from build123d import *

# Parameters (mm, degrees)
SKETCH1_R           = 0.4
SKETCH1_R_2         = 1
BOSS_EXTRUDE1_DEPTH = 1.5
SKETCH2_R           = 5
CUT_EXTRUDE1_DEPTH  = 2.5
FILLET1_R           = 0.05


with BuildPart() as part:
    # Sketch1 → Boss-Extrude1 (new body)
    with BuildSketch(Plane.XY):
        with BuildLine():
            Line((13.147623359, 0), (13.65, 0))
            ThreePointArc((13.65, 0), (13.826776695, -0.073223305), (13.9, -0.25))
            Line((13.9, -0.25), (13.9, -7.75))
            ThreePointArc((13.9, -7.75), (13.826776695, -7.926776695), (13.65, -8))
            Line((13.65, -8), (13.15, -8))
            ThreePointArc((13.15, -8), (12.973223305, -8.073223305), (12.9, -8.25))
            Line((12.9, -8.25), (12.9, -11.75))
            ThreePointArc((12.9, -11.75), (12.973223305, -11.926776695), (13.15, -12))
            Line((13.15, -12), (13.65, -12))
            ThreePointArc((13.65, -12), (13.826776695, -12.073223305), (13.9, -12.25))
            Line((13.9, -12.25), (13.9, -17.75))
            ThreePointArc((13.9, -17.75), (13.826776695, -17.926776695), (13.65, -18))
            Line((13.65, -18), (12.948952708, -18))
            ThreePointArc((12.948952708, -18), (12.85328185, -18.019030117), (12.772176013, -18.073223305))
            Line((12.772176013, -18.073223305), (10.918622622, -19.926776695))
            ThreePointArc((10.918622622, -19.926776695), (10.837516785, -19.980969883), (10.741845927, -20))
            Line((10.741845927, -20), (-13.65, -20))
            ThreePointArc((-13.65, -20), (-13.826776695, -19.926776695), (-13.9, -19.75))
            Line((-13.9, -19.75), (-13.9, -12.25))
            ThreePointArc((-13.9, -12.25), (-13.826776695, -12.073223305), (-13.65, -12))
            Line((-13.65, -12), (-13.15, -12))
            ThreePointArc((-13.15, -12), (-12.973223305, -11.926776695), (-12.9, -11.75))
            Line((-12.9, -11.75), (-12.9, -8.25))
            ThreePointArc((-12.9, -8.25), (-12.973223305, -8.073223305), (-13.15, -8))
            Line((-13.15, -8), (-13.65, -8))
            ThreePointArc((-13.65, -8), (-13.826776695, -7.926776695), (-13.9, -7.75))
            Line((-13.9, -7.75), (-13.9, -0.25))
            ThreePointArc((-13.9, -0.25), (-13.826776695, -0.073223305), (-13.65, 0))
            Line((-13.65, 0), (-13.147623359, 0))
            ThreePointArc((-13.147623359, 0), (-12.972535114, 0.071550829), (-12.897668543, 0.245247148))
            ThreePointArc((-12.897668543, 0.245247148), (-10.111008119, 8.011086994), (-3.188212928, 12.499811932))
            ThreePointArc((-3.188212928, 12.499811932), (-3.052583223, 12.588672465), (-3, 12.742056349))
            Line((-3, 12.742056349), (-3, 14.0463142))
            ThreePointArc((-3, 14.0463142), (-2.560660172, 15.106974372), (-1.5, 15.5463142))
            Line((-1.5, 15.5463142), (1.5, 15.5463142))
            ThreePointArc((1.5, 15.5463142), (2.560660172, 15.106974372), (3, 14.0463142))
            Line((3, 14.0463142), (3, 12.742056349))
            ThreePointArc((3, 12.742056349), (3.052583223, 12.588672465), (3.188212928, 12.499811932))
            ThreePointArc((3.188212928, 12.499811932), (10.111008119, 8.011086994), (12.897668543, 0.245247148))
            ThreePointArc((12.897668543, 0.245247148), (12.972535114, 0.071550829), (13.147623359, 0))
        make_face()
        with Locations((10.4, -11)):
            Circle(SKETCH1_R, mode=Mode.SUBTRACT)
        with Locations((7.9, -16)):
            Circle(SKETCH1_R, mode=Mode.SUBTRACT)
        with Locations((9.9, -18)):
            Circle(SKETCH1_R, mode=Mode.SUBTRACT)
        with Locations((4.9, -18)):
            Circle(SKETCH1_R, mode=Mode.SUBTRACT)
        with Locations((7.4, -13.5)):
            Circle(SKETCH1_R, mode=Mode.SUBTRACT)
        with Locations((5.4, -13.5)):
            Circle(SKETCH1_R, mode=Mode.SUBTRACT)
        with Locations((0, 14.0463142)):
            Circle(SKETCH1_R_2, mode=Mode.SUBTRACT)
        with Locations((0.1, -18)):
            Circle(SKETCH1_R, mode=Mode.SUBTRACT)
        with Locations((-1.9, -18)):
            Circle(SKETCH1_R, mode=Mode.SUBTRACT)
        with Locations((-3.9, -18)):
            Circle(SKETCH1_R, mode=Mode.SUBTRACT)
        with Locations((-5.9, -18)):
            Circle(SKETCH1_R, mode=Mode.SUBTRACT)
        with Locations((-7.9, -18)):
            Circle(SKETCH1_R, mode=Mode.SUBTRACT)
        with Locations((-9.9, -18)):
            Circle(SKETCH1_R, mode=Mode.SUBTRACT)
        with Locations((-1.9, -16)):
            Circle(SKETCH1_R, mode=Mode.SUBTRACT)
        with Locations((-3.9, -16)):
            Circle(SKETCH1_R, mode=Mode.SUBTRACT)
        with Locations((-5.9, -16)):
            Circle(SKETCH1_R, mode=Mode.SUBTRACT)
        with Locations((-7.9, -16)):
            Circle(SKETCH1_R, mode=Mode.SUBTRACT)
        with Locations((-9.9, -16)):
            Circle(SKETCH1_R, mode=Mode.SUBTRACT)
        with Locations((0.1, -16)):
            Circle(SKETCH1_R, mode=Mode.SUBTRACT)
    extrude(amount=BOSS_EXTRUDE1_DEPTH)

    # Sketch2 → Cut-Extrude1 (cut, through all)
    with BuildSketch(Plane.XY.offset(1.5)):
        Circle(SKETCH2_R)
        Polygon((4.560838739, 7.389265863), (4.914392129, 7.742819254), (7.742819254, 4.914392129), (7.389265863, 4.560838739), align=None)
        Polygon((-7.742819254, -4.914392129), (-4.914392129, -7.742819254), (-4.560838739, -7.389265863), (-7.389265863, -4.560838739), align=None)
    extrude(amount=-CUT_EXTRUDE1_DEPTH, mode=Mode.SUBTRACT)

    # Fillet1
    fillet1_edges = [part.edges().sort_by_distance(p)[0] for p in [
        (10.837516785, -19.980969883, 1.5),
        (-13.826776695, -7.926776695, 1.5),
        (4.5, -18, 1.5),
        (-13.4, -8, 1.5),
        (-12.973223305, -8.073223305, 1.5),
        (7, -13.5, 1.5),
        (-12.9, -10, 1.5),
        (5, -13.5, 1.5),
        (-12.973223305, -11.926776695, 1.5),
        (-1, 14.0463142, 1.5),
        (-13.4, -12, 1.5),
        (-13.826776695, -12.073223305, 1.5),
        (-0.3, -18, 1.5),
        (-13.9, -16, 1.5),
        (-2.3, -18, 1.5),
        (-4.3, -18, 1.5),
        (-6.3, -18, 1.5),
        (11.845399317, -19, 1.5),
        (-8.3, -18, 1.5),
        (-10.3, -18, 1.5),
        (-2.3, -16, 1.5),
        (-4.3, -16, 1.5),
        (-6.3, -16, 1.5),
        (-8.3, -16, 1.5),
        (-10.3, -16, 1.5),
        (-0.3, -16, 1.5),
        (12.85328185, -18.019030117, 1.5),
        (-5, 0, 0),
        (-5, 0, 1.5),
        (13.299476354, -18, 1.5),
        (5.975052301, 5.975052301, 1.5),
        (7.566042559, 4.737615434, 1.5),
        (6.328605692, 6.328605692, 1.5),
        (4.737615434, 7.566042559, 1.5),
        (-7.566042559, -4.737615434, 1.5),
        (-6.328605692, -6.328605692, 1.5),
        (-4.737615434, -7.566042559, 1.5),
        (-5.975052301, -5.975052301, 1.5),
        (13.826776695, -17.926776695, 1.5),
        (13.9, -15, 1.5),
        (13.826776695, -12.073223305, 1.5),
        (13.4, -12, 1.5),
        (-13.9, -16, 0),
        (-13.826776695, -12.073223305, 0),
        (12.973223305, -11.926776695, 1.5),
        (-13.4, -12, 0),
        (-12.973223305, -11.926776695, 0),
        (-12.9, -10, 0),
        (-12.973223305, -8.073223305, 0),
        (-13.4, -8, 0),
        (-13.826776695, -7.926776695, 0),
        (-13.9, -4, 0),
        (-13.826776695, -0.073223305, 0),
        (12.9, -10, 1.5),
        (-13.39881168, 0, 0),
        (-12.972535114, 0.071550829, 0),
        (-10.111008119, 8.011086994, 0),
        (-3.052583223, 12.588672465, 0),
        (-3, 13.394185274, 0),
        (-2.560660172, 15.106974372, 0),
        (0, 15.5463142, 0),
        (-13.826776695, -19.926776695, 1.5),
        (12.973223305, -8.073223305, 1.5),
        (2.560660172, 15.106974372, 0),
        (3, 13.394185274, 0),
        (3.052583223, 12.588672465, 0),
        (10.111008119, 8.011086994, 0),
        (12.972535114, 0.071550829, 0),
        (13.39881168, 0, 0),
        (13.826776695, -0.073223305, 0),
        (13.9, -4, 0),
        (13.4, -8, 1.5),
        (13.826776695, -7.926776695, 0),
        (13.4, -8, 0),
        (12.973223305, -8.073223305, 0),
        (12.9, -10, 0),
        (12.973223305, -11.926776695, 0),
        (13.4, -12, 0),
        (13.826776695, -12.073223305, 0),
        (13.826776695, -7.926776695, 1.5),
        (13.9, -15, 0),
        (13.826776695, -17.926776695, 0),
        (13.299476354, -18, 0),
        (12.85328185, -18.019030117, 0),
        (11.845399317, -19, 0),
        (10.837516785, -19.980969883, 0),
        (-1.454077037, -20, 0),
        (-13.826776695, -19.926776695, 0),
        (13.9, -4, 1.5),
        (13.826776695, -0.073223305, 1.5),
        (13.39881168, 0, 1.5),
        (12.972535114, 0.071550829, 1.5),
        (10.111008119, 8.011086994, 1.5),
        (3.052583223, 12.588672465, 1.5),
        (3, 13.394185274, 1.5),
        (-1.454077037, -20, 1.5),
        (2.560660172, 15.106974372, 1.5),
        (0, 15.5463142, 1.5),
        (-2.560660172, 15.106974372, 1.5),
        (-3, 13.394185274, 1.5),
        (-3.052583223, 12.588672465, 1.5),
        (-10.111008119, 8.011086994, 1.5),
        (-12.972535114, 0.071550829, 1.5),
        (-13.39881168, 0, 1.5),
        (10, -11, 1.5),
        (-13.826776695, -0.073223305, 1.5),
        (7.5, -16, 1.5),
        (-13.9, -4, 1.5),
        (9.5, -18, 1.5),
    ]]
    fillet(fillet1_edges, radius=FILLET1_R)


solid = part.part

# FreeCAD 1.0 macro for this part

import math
import FreeCAD as App
import Part
import Sketcher
Q = App.Units.Quantity


def edges_at(feature, points):
    """Names of the edges that pass closest to the given points."""
    edges = feature.Shape.Edges
    near = lambda p: min(range(len(edges)), key=lambda i: edges[i].distToShape(Part.Vertex(*p))[0])
    return sorted({f"Edge{near(p) + 1}" for p in points})


def add_polygon(sketch, points):
    """Adds a closed chain of lines whose ends are joined by coincident constraints."""
    first, n = sketch.GeometryCount, len(points)
    for a, b in zip(points, points[1:] + points[:1]):
        sketch.addGeometry(Part.LineSegment(App.Vector(*a, 0), App.Vector(*b, 0)), False)
    for i in range(n):
        sketch.addConstraint(Sketcher.Constraint("Coincident", first + i, 2, first + (i + 1) % n, 1))

doc = App.newDocument("Part")
body = doc.addObject("PartDesign::Body", "Body")

sketch1 = body.newObject("Sketcher::SketchObject", "Sketch")
sketch1.AttachmentSupport = (doc.getObject("XY_Plane"), [""])
sketch1.MapMode = "FlatFace"
sketch1.addGeometry([
    Part.LineSegment(App.Vector(13.65, 0, 0), App.Vector(13.15, 0, 0)),
    Part.ArcOfCircle(Part.Circle(App.Vector(13.15, 0.25, 0), App.Vector(0, 0, 1), 0.25), math.radians(-179), math.radians(-90)),
    Part.ArcOfCircle(Part.Circle(App.Vector(0, 0, 0), App.Vector(0, 0, 1), 12.9), math.radians(1), math.radians(76)),
    Part.ArcOfCircle(Part.Circle(App.Vector(3.25, 12.74, 0), App.Vector(0, 0, 1), 0.25), math.radians(-180), math.radians(-104)),
    Part.LineSegment(App.Vector(3, 12.74, 0), App.Vector(3, 14.05, 0)),
    Part.ArcOfCircle(Part.Circle(App.Vector(1.5, 14.05, 0), App.Vector(0, 0, 1), 1.5), math.radians(0), math.radians(90)),
    Part.LineSegment(App.Vector(1.5, 15.55, 0), App.Vector(-1.5, 15.55, 0)),
    Part.ArcOfCircle(Part.Circle(App.Vector(-1.5, 14.05, 0), App.Vector(0, 0, 1), 1.5), math.radians(90), math.radians(180)),
    Part.LineSegment(App.Vector(-3, 14.05, 0), App.Vector(-3, 12.74, 0)),
    Part.ArcOfCircle(Part.Circle(App.Vector(-3.25, 12.74, 0), App.Vector(0, 0, 1), 0.25), math.radians(-76), math.radians(0)),
    Part.ArcOfCircle(Part.Circle(App.Vector(0, 0, 0), App.Vector(0, 0, 1), 12.9), math.radians(104), math.radians(179)),
    Part.ArcOfCircle(Part.Circle(App.Vector(-13.15, 0.25, 0), App.Vector(0, 0, 1), 0.25), math.radians(-90), math.radians(-1)),
    Part.LineSegment(App.Vector(-13.15, 0, 0), App.Vector(-13.65, 0, 0)),
    Part.ArcOfCircle(Part.Circle(App.Vector(-13.65, -0.25, 0), App.Vector(0, 0, 1), 0.25), math.radians(90), math.radians(180)),
    Part.LineSegment(App.Vector(-13.9, -0.25, 0), App.Vector(-13.9, -7.75, 0)),
    Part.ArcOfCircle(Part.Circle(App.Vector(-13.65, -7.75, 0), App.Vector(0, 0, 1), 0.25), math.radians(-180), math.radians(-90)),
    Part.LineSegment(App.Vector(-13.65, -8, 0), App.Vector(-13.15, -8, 0)),
    Part.ArcOfCircle(Part.Circle(App.Vector(-13.15, -8.25, 0), App.Vector(0, 0, 1), 0.25), math.radians(0), math.radians(90)),
    Part.LineSegment(App.Vector(-12.9, -8.25, 0), App.Vector(-12.9, -11.75, 0)),
    Part.ArcOfCircle(Part.Circle(App.Vector(-13.15, -11.75, 0), App.Vector(0, 0, 1), 0.25), math.radians(-90), math.radians(0)),
    Part.LineSegment(App.Vector(-13.15, -12, 0), App.Vector(-13.65, -12, 0)),
    Part.ArcOfCircle(Part.Circle(App.Vector(-13.65, -12.25, 0), App.Vector(0, 0, 1), 0.25), math.radians(90), math.radians(180)),
    Part.LineSegment(App.Vector(-13.9, -12.25, 0), App.Vector(-13.9, -19.75, 0)),
    Part.ArcOfCircle(Part.Circle(App.Vector(-13.65, -19.75, 0), App.Vector(0, 0, 1), 0.25), math.radians(-180), math.radians(-90)),
    Part.LineSegment(App.Vector(-13.65, -20, 0), App.Vector(10.74, -20, 0)),
    Part.ArcOfCircle(Part.Circle(App.Vector(10.74, -19.75, 0), App.Vector(0, 0, 1), 0.25), math.radians(-90), math.radians(-45)),
    Part.LineSegment(App.Vector(10.92, -19.93, 0), App.Vector(12.77, -18.07, 0)),
    Part.ArcOfCircle(Part.Circle(App.Vector(12.95, -18.25, 0), App.Vector(0, 0, 1), 0.25), math.radians(90), math.radians(135)),
    Part.LineSegment(App.Vector(12.95, -18, 0), App.Vector(13.65, -18, 0)),
    Part.ArcOfCircle(Part.Circle(App.Vector(13.65, -17.75, 0), App.Vector(0, 0, 1), 0.25), math.radians(-90), math.radians(0)),
    Part.LineSegment(App.Vector(13.9, -17.75, 0), App.Vector(13.9, -12.25, 0)),
    Part.ArcOfCircle(Part.Circle(App.Vector(13.65, -12.25, 0), App.Vector(0, 0, 1), 0.25), math.radians(0), math.radians(90)),
    Part.LineSegment(App.Vector(13.65, -12, 0), App.Vector(13.15, -12, 0)),
    Part.ArcOfCircle(Part.Circle(App.Vector(13.15, -11.75, 0), App.Vector(0, 0, 1), 0.25), math.radians(-180), math.radians(-90)),
    Part.LineSegment(App.Vector(12.9, -11.75, 0), App.Vector(12.9, -8.25, 0)),
    Part.ArcOfCircle(Part.Circle(App.Vector(13.15, -8.25, 0), App.Vector(0, 0, 1), 0.25), math.radians(90), math.radians(180)),
    Part.LineSegment(App.Vector(13.15, -8, 0), App.Vector(13.65, -8, 0)),
    Part.ArcOfCircle(Part.Circle(App.Vector(13.65, -7.75, 0), App.Vector(0, 0, 1), 0.25), math.radians(-90), math.radians(0)),
    Part.LineSegment(App.Vector(13.9, -7.75, 0), App.Vector(13.9, -0.25, 0)),
    Part.ArcOfCircle(Part.Circle(App.Vector(13.65, -0.25, 0), App.Vector(0, 0, 1), 0.25), math.radians(0), math.radians(90)),
    Part.Circle(App.Vector(9.9, -18, 0), App.Vector(0, 0, 1), 0.4),
    Part.Circle(App.Vector(7.9, -16, 0), App.Vector(0, 0, 1), 0.4),
    Part.Circle(App.Vector(10.4, -11, 0), App.Vector(0, 0, 1), 0.4),
    Part.Circle(App.Vector(7.4, -13.5, 0), App.Vector(0, 0, 1), 0.4),
    Part.Circle(App.Vector(4.9, -18, 0), App.Vector(0, 0, 1), 0.4),
    Part.Circle(App.Vector(5.4, -13.5, 0), App.Vector(0, 0, 1), 0.4),
    Part.Circle(App.Vector(0.1, -18, 0), App.Vector(0, 0, 1), 0.4),
    Part.Circle(App.Vector(-1.9, -18, 0), App.Vector(0, 0, 1), 0.4),
    Part.Circle(App.Vector(0.1, -16, 0), App.Vector(0, 0, 1), 0.4),
    Part.Circle(App.Vector(-1.9, -16, 0), App.Vector(0, 0, 1), 0.4),
    Part.Circle(App.Vector(-3.9, -18, 0), App.Vector(0, 0, 1), 0.4),
    Part.Circle(App.Vector(-3.9, -16, 0), App.Vector(0, 0, 1), 0.4),
    Part.Circle(App.Vector(-5.9, -18, 0), App.Vector(0, 0, 1), 0.4),
    Part.Circle(App.Vector(-5.9, -16, 0), App.Vector(0, 0, 1), 0.4),
    Part.Circle(App.Vector(-7.9, -18, 0), App.Vector(0, 0, 1), 0.4),
    Part.Circle(App.Vector(-9.9, -18, 0), App.Vector(0, 0, 1), 0.4),
    Part.Circle(App.Vector(-7.9, -16, 0), App.Vector(0, 0, 1), 0.4),
    Part.Circle(App.Vector(-9.9, -16, 0), App.Vector(0, 0, 1), 0.4),
    Part.Circle(App.Vector(0, 14.05, 0), App.Vector(0, 0, 1), 1),
], False)
sketch1.addConstraint([
    Sketcher.Constraint("Tangent", 0, 2, 1, 2),
    Sketcher.Constraint("Tangent", 1, 1, 2, 1),
    Sketcher.Constraint("Tangent", 2, 2, 3, 2),
    Sketcher.Constraint("Tangent", 3, 1, 4, 1),
    Sketcher.Constraint("Tangent", 4, 2, 5, 1),
    Sketcher.Constraint("Tangent", 5, 2, 6, 1),
    Sketcher.Constraint("Tangent", 6, 2, 7, 1),
    Sketcher.Constraint("Tangent", 7, 2, 8, 1),
    Sketcher.Constraint("Tangent", 8, 2, 9, 2),
    Sketcher.Constraint("Tangent", 9, 1, 10, 1),
    Sketcher.Constraint("Tangent", 10, 2, 11, 2),
    Sketcher.Constraint("Tangent", 11, 1, 12, 1),
    Sketcher.Constraint("Tangent", 12, 2, 13, 1),
    Sketcher.Constraint("Tangent", 13, 2, 14, 1),
    Sketcher.Constraint("Tangent", 14, 2, 15, 1),
    Sketcher.Constraint("Tangent", 15, 2, 16, 1),
    Sketcher.Constraint("Tangent", 16, 2, 17, 2),
    Sketcher.Constraint("Tangent", 17, 1, 18, 1),
    Sketcher.Constraint("Tangent", 18, 2, 19, 2),
    Sketcher.Constraint("Tangent", 19, 1, 20, 1),
    Sketcher.Constraint("Tangent", 20, 2, 21, 1),
    Sketcher.Constraint("Tangent", 21, 2, 22, 1),
    Sketcher.Constraint("Tangent", 22, 2, 23, 1),
    Sketcher.Constraint("Tangent", 23, 2, 24, 1),
    Sketcher.Constraint("Tangent", 24, 2, 25, 1),
    Sketcher.Constraint("Tangent", 25, 2, 26, 1),
    Sketcher.Constraint("Tangent", 26, 2, 27, 2),
    Sketcher.Constraint("Tangent", 27, 1, 28, 1),
    Sketcher.Constraint("Tangent", 28, 2, 29, 1),
    Sketcher.Constraint("Tangent", 29, 2, 30, 1),
    Sketcher.Constraint("Tangent", 30, 2, 31, 1),
    Sketcher.Constraint("Tangent", 31, 2, 32, 1),
    Sketcher.Constraint("Tangent", 32, 2, 33, 2),
    Sketcher.Constraint("Tangent", 33, 1, 34, 1),
    Sketcher.Constraint("Tangent", 34, 2, 35, 2),
    Sketcher.Constraint("Tangent", 35, 1, 36, 1),
    Sketcher.Constraint("Tangent", 36, 2, 37, 1),
    Sketcher.Constraint("Tangent", 37, 2, 38, 1),
    Sketcher.Constraint("Tangent", 38, 2, 39, 1),
    Sketcher.Constraint("Tangent", 39, 2, 0, 1),
    Sketcher.Constraint("Horizontal", 0),
    Sketcher.Constraint("Vertical", 4),
    Sketcher.Constraint("Horizontal", 6),
    Sketcher.Constraint("Vertical", 8),
    Sketcher.Constraint("Horizontal", 12),
    Sketcher.Constraint("Vertical", 14),
    Sketcher.Constraint("Horizontal", 16),
    Sketcher.Constraint("Vertical", 18),
    Sketcher.Constraint("Horizontal", 20),
    Sketcher.Constraint("Vertical", 22),
    Sketcher.Constraint("Horizontal", 24),
    Sketcher.Constraint("Horizontal", 28),
    Sketcher.Constraint("Vertical", 30),
    Sketcher.Constraint("Horizontal", 32),
    Sketcher.Constraint("Vertical", 34),
    Sketcher.Constraint("Horizontal", 36),
    Sketcher.Constraint("Vertical", 38),
    Sketcher.Constraint("Coincident", 2, 3, -1, 1),
    Sketcher.Constraint("Coincident", 10, 3, -1, 1),
    Sketcher.Constraint("Equal", 1, 3),
    Sketcher.Constraint("Equal", 5, 7),
    Sketcher.Constraint("Equal", 3, 9),
    Sketcher.Constraint("Equal", 2, 10),
    Sketcher.Constraint("Equal", 9, 11),
    Sketcher.Constraint("Equal", 11, 13),
    Sketcher.Constraint("Equal", 13, 15),
    Sketcher.Constraint("Equal", 15, 17),
    Sketcher.Constraint("Equal", 17, 19),
    Sketcher.Constraint("Equal", 19, 21),
    Sketcher.Constraint("Equal", 21, 23),
    Sketcher.Constraint("Equal", 23, 25),
    Sketcher.Constraint("Equal", 25, 27),
    Sketcher.Constraint("Equal", 27, 29),
    Sketcher.Constraint("Equal", 29, 31),
    Sketcher.Constraint("Equal", 31, 33),
    Sketcher.Constraint("Equal", 33, 35),
    Sketcher.Constraint("Equal", 35, 37),
    Sketcher.Constraint("Equal", 37, 39),
    Sketcher.Constraint("Equal", 40, 41),
    Sketcher.Constraint("Equal", 41, 42),
    Sketcher.Constraint("Equal", 42, 43),
    Sketcher.Constraint("Equal", 43, 44),
    Sketcher.Constraint("Equal", 44, 45),
    Sketcher.Constraint("Equal", 45, 46),
    Sketcher.Constraint("Equal", 46, 47),
    Sketcher.Constraint("Equal", 47, 48),
    Sketcher.Constraint("Equal", 48, 49),
    Sketcher.Constraint("Equal", 49, 50),
    Sketcher.Constraint("Equal", 50, 51),
    Sketcher.Constraint("Equal", 51, 52),
    Sketcher.Constraint("Equal", 52, 53),
    Sketcher.Constraint("Equal", 53, 54),
    Sketcher.Constraint("Equal", 54, 55),
    Sketcher.Constraint("Equal", 55, 56),
    Sketcher.Constraint("Equal", 56, 57),
    Sketcher.Constraint("Symmetric", 0, 2, 11, 1, -1, 1),
    Sketcher.Constraint("Symmetric", 21, 3, 31, 3, -2),
    Sketcher.Constraint("Symmetric", 17, 3, 35, 3, -2),
    Sketcher.Constraint("Symmetric", 40, 3, 55, 3, -2),
    Sketcher.Constraint("Symmetric", 41, 3, 56, 3, -2),
    Sketcher.Constraint("PointOnObject", 58, 3, -2),
    Sketcher.Constraint("Horizontal", 3, 3, 9, 3),
    Sketcher.Constraint("Horizontal", 40, 3, 44, 3),
    Sketcher.Constraint("Horizontal", 43, 3, 45, 3),
    Sketcher.Constraint("Horizontal", 44, 3, 46, 3),
    Sketcher.Constraint("Horizontal", 46, 3, 47, 3),
    Sketcher.Constraint("Horizontal", 41, 3, 48, 3),
    Sketcher.Constraint("Horizontal", 48, 3, 49, 3),
    Sketcher.Constraint("Horizontal", 47, 3, 50, 3),
    Sketcher.Constraint("Horizontal", 49, 3, 51, 3),
    Sketcher.Constraint("Horizontal", 50, 3, 52, 3),
    Sketcher.Constraint("Horizontal", 51, 3, 53, 3),
    Sketcher.Constraint("Horizontal", 52, 3, 54, 3),
    Sketcher.Constraint("Horizontal", 56, 3, 57, 3),
    Sketcher.Constraint("Horizontal", 7, 3, 58, 3),
    Sketcher.Constraint("Horizontal", 55, 3, 27, 1),
    Sketcher.Constraint("Vertical", 15, 3, 21, 3),
    Sketcher.Constraint("Vertical", 31, 3, 37, 3),
    Sketcher.Constraint("Vertical", 46, 3, 48, 3),
    Sketcher.Constraint("Vertical", 47, 3, 49, 3),
    Sketcher.Constraint("Vertical", 50, 3, 51, 3),
    Sketcher.Constraint("Vertical", 52, 3, 53, 3),
    Sketcher.Constraint("Vertical", 54, 3, 56, 3),
    Sketcher.Constraint("Vertical", 55, 3, 57, 3),
    Sketcher.Constraint("Equal", 14, 22),
    Sketcher.Constraint("Diameter", 58, Q("2 mm")),
    Sketcher.Constraint("Diameter", 40, Q("0.8 mm")),
    Sketcher.Constraint("Radius", 2, Q("12.9 mm")),
    Sketcher.Constraint("Radius", 5, Q("1.5 mm")),
    Sketcher.Constraint("DistanceX", 6, 2, 6, 1, Q("3 mm")),
    Sketcher.Constraint("Angle", 26, Q("45 deg")),
    Sketcher.Constraint("Radius", 1, Q("0.25 mm")),
    Sketcher.Constraint("DistanceX", 16, 1, 16, 2, Q("0.5 mm")),
    Sketcher.Constraint("DistanceY", 14, 2, 14, 1, Q("7.5 mm")),
    Sketcher.Constraint("DistanceY", 18, 2, 18, 1, Q("3.5 mm")),
    Sketcher.Constraint("DistanceY", 30, 1, 30, 2, Q("5.5 mm")),
    Sketcher.Constraint("DistanceY", 41, 3, -1, 1, Q("16 mm")),
    Sketcher.Constraint("DistanceY", 42, 3, -1, 1, Q("11 mm")),
    Sketcher.Constraint("DistanceX", -1, 1, 40, 3, Q("9.9 mm")),
    Sketcher.Constraint("DistanceX", -1, 1, 41, 3, Q("7.9 mm")),
    Sketcher.Constraint("DistanceX", -1, 1, 42, 3, Q("10.4 mm")),
    Sketcher.Constraint("DistanceX", -1, 1, 43, 3, Q("7.4 mm")),
    Sketcher.Constraint("DistanceY", 43, 3, -1, 1, Q("13.5 mm")),
    Sketcher.Constraint("DistanceX", -1, 1, 44, 3, Q("4.9 mm")),
    Sketcher.Constraint("DistanceX", -1, 1, 45, 3, Q("5.4 mm")),
    Sketcher.Constraint("DistanceX", -1, 1, 46, 3, Q("0.1 mm")),
    Sketcher.Constraint("DistanceX", 47, 3, -1, 1, Q("1.9 mm")),
    Sketcher.Constraint("DistanceX", 50, 3, -1, 1, Q("3.9 mm")),
    Sketcher.Constraint("DistanceX", 52, 3, -1, 1, Q("5.9 mm")),
    Sketcher.Constraint("DistanceX", 13, 2, -1, 1, Q("13.9 mm")),
    Sketcher.Constraint("DistanceX", 24, 1, 24, 2, Q("24.391846 mm")),
    Sketcher.Constraint("DistanceY", 4, 1, 4, 2, Q("1.304258 mm")),
])
pad1 = body.newObject("PartDesign::Pad", "Pad")
pad1.Profile = sketch1
pad1.Length = 1.5

sketch2 = body.newObject("Sketcher::SketchObject", "Sketch001")
sketch2.AttachmentSupport = (doc.getObject("XY_Plane"), [""])
sketch2.MapMode = "FlatFace"
sketch2.AttachmentOffset = App.Placement(App.Vector(0, 0, 1.5), App.Rotation())
sketch2.addGeometry(Part.Circle(App.Vector(0, 0, 0), App.Vector(0, 0, 1), 5), False)
add_polygon(sketch2, [(4.91, 7.74), (4.56, 7.39), (7.39, 4.56), (7.74, 4.91)])
add_polygon(sketch2, [(-7.74, -4.91), (-4.91, -7.74), (-4.56, -7.39), (-7.39, -4.56)])
sketch2.addConstraint([
    Sketcher.Constraint("Coincident", 0, 3, -1, 1),
    Sketcher.Constraint("Symmetric", 4, 2, 5, 2, -1, 1),
    Sketcher.Constraint("Symmetric", 1, 2, 6, 2, -1, 1),
    Sketcher.Constraint("Symmetric", 2, 2, 7, 2, -1, 1),
    Sketcher.Constraint("Symmetric", 3, 2, 8, 2, -1, 1),
    Sketcher.Constraint("Perpendicular", 1, 2),
    Sketcher.Constraint("Perpendicular", 2, 3),
    Sketcher.Constraint("Perpendicular", 3, 4),
    Sketcher.Constraint("Diameter", 0, Q("10 mm")),
    Sketcher.Constraint("Angle", 1, Q("-135 deg")),
    Sketcher.Constraint("Distance", 2, Q("4 mm")),
    Sketcher.Constraint("Distance", 1, Q("0.5 mm")),
    Sketcher.Constraint("DistanceX", -1, 1, 1, 2, Q("4.560839 mm")),
    Sketcher.Constraint("DistanceY", -1, 1, 2, 2, Q("4.560839 mm")),
])
pocket1 = body.newObject("PartDesign::Pocket", "Pocket")
pocket1.Profile = sketch2
pocket1.Type = "ThroughAll"
doc.recompute()

fillet = body.newObject("PartDesign::Fillet", "Fillet")
fillet.Base = (pocket1, edges_at(pocket1, [
    (10.838, -19.981, 1.5),
    (-13.827, -7.927, 1.5),
    (4.5, -18, 1.5),
    (-13.4, -8, 1.5),
    (-12.973, -8.073, 1.5),
    (7, -13.5, 1.5),
    (-12.9, -10, 1.5),
    (5, -13.5, 1.5),
    (-12.973, -11.927, 1.5),
    (-1, 14.046, 1.5),
    (-13.4, -12, 1.5),
    (-13.827, -12.073, 1.5),
    (-0.3, -18, 1.5),
    (-13.9, -16, 1.5),
    (-2.3, -18, 1.5),
    (-4.3, -18, 1.5),
    (-6.3, -18, 1.5),
    (11.845, -19, 1.5),
    (-8.3, -18, 1.5),
    (-10.3, -18, 1.5),
    (-2.3, -16, 1.5),
    (-4.3, -16, 1.5),
    (-6.3, -16, 1.5),
    (-8.3, -16, 1.5),
    (-10.3, -16, 1.5),
    (-0.3, -16, 1.5),
    (12.853, -18.019, 1.5),
    (-5, 0, 0),
    (-5, 0, 1.5),
    (13.299, -18, 1.5),
    (5.975, 5.975, 1.5),
    (7.566, 4.738, 1.5),
    (6.329, 6.329, 1.5),
    (4.738, 7.566, 1.5),
    (-7.566, -4.738, 1.5),
    (-6.329, -6.329, 1.5),
    (-4.738, -7.566, 1.5),
    (-5.975, -5.975, 1.5),
    (13.827, -17.927, 1.5),
    (13.9, -15, 1.5),
    (13.827, -12.073, 1.5),
    (13.4, -12, 1.5),
    (-13.9, -16, 0),
    (-13.827, -12.073, 0),
    (12.973, -11.927, 1.5),
    (-13.4, -12, 0),
    (-12.973, -11.927, 0),
    (-12.9, -10, 0),
    (-12.973, -8.073, 0),
    (-13.4, -8, 0),
    (-13.827, -7.927, 0),
    (-13.9, -4, 0),
    (-13.827, -0.073, 0),
    (12.9, -10, 1.5),
    (-13.399, 0, 0),
    (-12.973, 0.072, 0),
    (-10.111, 8.011, 0),
    (-3.053, 12.589, 0),
    (-3, 13.394, 0),
    (-2.561, 15.107, 0),
    (0, 15.546, 0),
    (-13.827, -19.927, 1.5),
    (12.973, -8.073, 1.5),
    (2.561, 15.107, 0),
    (3, 13.394, 0),
    (3.053, 12.589, 0),
    (10.111, 8.011, 0),
    (12.973, 0.072, 0),
    (13.399, 0, 0),
    (13.827, -0.073, 0),
    (13.9, -4, 0),
    (13.4, -8, 1.5),
    (13.827, -7.927, 0),
    (13.4, -8, 0),
    (12.973, -8.073, 0),
    (12.9, -10, 0),
    (12.973, -11.927, 0),
    (13.4, -12, 0),
    (13.827, -12.073, 0),
    (13.827, -7.927, 1.5),
    (13.9, -15, 0),
    (13.827, -17.927, 0),
    (13.299, -18, 0),
    (12.853, -18.019, 0),
    (11.845, -19, 0),
    (10.838, -19.981, 0),
    (-1.454, -20, 0),
    (-13.827, -19.927, 0),
    (13.9, -4, 1.5),
    (13.827, -0.073, 1.5),
    (13.399, 0, 1.5),
    (12.973, 0.072, 1.5),
    (10.111, 8.011, 1.5),
    (3.053, 12.589, 1.5),
    (3, 13.394, 1.5),
    (-1.454, -20, 1.5),
    (2.561, 15.107, 1.5),
    (0, 15.546, 1.5),
    (-2.561, 15.107, 1.5),
    (-3, 13.394, 1.5),
    (-3.053, 12.589, 1.5),
    (-10.111, 8.011, 1.5),
    (-12.973, 0.072, 1.5),
    (-13.399, 0, 1.5),
    (10, -11, 1.5),
    (-13.827, -0.073, 1.5),
    (7.5, -16, 1.5),
    (-13.9, -4, 1.5),
    (9.5, -18, 1.5),
]))
fillet.Radius = 0.05

doc.recompute()
